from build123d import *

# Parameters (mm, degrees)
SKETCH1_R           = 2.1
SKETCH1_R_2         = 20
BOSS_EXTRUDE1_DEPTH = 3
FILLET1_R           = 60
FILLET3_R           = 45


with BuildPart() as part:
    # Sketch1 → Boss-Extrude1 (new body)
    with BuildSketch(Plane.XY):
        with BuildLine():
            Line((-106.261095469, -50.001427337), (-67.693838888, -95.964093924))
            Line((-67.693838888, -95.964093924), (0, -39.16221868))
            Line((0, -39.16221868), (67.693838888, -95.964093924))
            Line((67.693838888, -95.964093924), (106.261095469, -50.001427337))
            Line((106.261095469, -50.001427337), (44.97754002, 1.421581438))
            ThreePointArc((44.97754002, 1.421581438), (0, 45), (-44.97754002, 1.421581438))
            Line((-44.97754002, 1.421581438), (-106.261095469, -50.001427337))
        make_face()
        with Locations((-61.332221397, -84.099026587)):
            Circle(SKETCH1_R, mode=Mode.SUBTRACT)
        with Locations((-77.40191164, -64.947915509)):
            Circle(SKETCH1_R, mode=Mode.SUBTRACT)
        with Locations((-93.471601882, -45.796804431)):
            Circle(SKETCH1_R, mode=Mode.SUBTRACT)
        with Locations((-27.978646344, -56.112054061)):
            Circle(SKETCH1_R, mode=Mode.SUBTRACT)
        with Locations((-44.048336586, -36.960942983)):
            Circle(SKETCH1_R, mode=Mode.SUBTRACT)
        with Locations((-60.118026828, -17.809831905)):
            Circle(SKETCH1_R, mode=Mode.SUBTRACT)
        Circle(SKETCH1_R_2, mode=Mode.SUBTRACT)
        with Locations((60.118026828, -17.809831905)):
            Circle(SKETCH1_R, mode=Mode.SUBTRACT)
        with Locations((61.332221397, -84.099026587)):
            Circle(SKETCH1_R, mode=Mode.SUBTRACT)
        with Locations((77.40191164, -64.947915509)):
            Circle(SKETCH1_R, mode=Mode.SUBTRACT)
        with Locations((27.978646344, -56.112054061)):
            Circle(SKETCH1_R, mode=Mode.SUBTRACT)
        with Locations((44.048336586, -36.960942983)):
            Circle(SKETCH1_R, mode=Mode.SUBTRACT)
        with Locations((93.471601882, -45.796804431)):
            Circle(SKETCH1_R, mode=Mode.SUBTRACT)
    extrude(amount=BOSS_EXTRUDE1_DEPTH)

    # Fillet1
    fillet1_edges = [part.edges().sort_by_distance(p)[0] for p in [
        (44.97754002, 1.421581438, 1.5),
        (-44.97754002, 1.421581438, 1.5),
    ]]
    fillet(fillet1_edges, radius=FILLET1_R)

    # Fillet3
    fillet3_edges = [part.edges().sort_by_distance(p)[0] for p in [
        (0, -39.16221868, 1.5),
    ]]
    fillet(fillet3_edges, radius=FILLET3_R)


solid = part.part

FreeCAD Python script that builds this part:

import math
import FreeCAD as App
import Part
import Sketcher

V = App.Vector
Q = App.Units.Quantity


def edges_at(feature, points):
    """Names of the edges that pass closest to the given points."""
    edges = feature.Shape.Edges
    near = lambda p: min(range(len(edges)), key=lambda i: edges[i].distToShape(Part.Vertex(*p))[0])
    return sorted({f"Edge{near(p) + 1}" for p in points})

doc = App.newDocument("Part")
body = doc.addObject("PartDesign::Body", "Body")

# Sketch on XY plane
sketch1 = body.newObject("Sketcher::SketchObject", "Sketch")
sketch1.AttachmentSupport = (doc.getObject("XY_Plane"), [""])
sketch1.MapMode = "FlatFace"
sketch1.addGeometry([
    Part.LineSegment(V(-106.3, -50, 0), V(-67.7, -96, 0)),  # 0
    Part.LineSegment(V(-67.7, -96, 0), V(0, -39.2, 0)),  # 1
    Part.LineSegment(V(0, -39.2, 0), V(67.7, -96, 0)),  # 2
    Part.LineSegment(V(67.7, -96, 0), V(106.3, -50, 0)),  # 3
    Part.LineSegment(V(106.3, -50, 0), V(45, 1.4, 0)),  # 4
    Part.ArcOfCircle(Part.Circle(V(0, 0, 0), V(0, 0, 1), 45), math.radians(2), math.radians(178)),  # 5
    Part.LineSegment(V(-45, 1.4, 0), V(-106.3, -50, 0)),  # 6
    Part.Circle(V(-61.3, -84.1, 0), V(0, 0, 1), 2.1),  # 7
    Part.Circle(V(-77.4, -64.9, 0), V(0, 0, 1), 2.1),  # 8
    Part.Circle(V(-93.5, -45.8, 0), V(0, 0, 1), 2.1),  # 9
    Part.Circle(V(-28, -56.1, 0), V(0, 0, 1), 2.1),  # 10
    Part.Circle(V(-44, -37, 0), V(0, 0, 1), 2.1),  # 11
    Part.Circle(V(61.3, -84.1, 0), V(0, 0, 1), 2.1),  # 12
    Part.Circle(V(77.4, -64.9, 0), V(0, 0, 1), 2.1),  # 13
    Part.Circle(V(28, -56.1, 0), V(0, 0, 1), 2.1),  # 14
    Part.Circle(V(44, -37, 0), V(0, 0, 1), 2.1),  # 15
    Part.Circle(V(93.5, -45.8, 0), V(0, 0, 1), 2.1),  # 16
    Part.Circle(V(-60.1, -17.8, 0), V(0, 0, 1), 2.1),  # 17
    Part.Circle(V(0, 0, 0), V(0, 0, 1), 20),  # 18
    Part.Circle(V(60.1, -17.8, 0), V(0, 0, 1), 2.1),  # 19
], False)
sketch1.addConstraint([
    Sketcher.Constraint("Coincident", 0, 2, 1, 1),
    Sketcher.Constraint("Coincident", 1, 2, 2, 1),
    Sketcher.Constraint("Coincident", 2, 2, 3, 1),
    Sketcher.Constraint("Coincident", 3, 2, 4, 1),
    Sketcher.Constraint("Coincident", 4, 2, 5, 1),
    Sketcher.Constraint("Coincident", 5, 2, 6, 1),
    Sketcher.Constraint("Coincident", 6, 2, 0, 1),
    Sketcher.Constraint("Coincident", 5, 3, -1, 1),
    Sketcher.Constraint("Coincident", 18, 3, -1, 1),
    Sketcher.Constraint("Equal", 7, 8),
    Sketcher.Constraint("Equal", 8, 9),
    Sketcher.Constraint("Equal", 9, 10),
    Sketcher.Constraint("Equal", 10, 11),
    Sketcher.Constraint("Equal", 11, 12),
    Sketcher.Constraint("Equal", 12, 13),
    Sketcher.Constraint("Equal", 13, 14),
    Sketcher.Constraint("Equal", 14, 15),
    Sketcher.Constraint("Equal", 15, 16),
    Sketcher.Constraint("Equal", 16, 17),
    Sketcher.Constraint("Equal", 17, 19),
    Sketcher.Constraint("Symmetric", 7, 3, 12, 3, -2),
    Sketcher.Constraint("Symmetric", 8, 3, 13, 3, -2),
    Sketcher.Constraint("Symmetric", 10, 3, 14, 3, -2),
    Sketcher.Constraint("Symmetric", 11, 3, 15, 3, -2),
    Sketcher.Constraint("Symmetric", 9, 3, 16, 3, -2),
    Sketcher.Constraint("Symmetric", 17, 3, 19, 3, -2),
    Sketcher.Constraint("Symmetric", 0, 2, 2, 2, -2),
    Sketcher.Constraint("Symmetric", 3, 2, 6, 2, -2),
    Sketcher.Constraint("PointOnObject", 1, 2, -2),
    Sketcher.Constraint("Perpendicular", 0, 1),
    Sketcher.Constraint("Perpendicular", 3, 4),
    Sketcher.Constraint("Parallel", 1, 6),
    Sketcher.Constraint("Diameter", 18, 40.0),
    Sketcher.Constraint("Radius", 5, 45.0),
    Sketcher.Constraint("Diameter", 7, 4.2),
    Sketcher.Constraint("Angle", 0, Q("-50 deg")),
    Sketcher.Constraint("Distance", 0, 60.0),
    Sketcher.Constraint("Distance", 4, 80.0),
    Sketcher.Constraint("DistanceX", 9, 3, -1, 1, 93.471602),
    Sketcher.Constraint("DistanceY", 12, 3, 3, 2, 34.097599),
    Sketcher.Constraint("Distance", 1, 88.368031),
    Sketcher.Constraint("DistanceX", 7, 3, -1, 1, 61.332221),
    Sketcher.Constraint("DistanceX", 8, 3, -1, 1, 77.401912),
    Sketcher.Constraint("DistanceY", 17, 3, -1, 1, 17.809832),
    Sketcher.Constraint("DistanceY", 7, 3, 8, 3, 19.151111),
    Sketcher.Constraint("DistanceY", 8, 3, 9, 3, 19.151111),
    Sketcher.Constraint("DistanceY", 8, 3, 10, 3, 8.835861),
    Sketcher.Constraint("DistanceX", 11, 3, 10, 3, 16.06969),
    Sketcher.Constraint("DistanceY", 10, 3, 11, 3, 19.151111),
    Sketcher.Constraint("DistanceX", 11, 3, 13, 3, 121.450248),
    Sketcher.Constraint("DistanceX", 17, 3, 11, 3, 16.06969),
])
pad1 = body.newObject("PartDesign::Pad", "Pad")
pad1.Profile = sketch1
pad1.Length = 3
doc.recompute()

fillet = body.newObject("PartDesign::Fillet", "Fillet")
fillet.Base = (pad1, edges_at(pad1, [(44.978, 1.422, 1.5), (-44.978, 1.422, 1.5)]))
fillet.Radius = 60
doc.recompute()

fillet2 = body.newObject("PartDesign::Fillet", "Fillet001")
fillet2.Base = (fillet, edges_at(fillet, [(0, -39.162, 1.5)]))
fillet2.Radius = 45

doc.recompute()
